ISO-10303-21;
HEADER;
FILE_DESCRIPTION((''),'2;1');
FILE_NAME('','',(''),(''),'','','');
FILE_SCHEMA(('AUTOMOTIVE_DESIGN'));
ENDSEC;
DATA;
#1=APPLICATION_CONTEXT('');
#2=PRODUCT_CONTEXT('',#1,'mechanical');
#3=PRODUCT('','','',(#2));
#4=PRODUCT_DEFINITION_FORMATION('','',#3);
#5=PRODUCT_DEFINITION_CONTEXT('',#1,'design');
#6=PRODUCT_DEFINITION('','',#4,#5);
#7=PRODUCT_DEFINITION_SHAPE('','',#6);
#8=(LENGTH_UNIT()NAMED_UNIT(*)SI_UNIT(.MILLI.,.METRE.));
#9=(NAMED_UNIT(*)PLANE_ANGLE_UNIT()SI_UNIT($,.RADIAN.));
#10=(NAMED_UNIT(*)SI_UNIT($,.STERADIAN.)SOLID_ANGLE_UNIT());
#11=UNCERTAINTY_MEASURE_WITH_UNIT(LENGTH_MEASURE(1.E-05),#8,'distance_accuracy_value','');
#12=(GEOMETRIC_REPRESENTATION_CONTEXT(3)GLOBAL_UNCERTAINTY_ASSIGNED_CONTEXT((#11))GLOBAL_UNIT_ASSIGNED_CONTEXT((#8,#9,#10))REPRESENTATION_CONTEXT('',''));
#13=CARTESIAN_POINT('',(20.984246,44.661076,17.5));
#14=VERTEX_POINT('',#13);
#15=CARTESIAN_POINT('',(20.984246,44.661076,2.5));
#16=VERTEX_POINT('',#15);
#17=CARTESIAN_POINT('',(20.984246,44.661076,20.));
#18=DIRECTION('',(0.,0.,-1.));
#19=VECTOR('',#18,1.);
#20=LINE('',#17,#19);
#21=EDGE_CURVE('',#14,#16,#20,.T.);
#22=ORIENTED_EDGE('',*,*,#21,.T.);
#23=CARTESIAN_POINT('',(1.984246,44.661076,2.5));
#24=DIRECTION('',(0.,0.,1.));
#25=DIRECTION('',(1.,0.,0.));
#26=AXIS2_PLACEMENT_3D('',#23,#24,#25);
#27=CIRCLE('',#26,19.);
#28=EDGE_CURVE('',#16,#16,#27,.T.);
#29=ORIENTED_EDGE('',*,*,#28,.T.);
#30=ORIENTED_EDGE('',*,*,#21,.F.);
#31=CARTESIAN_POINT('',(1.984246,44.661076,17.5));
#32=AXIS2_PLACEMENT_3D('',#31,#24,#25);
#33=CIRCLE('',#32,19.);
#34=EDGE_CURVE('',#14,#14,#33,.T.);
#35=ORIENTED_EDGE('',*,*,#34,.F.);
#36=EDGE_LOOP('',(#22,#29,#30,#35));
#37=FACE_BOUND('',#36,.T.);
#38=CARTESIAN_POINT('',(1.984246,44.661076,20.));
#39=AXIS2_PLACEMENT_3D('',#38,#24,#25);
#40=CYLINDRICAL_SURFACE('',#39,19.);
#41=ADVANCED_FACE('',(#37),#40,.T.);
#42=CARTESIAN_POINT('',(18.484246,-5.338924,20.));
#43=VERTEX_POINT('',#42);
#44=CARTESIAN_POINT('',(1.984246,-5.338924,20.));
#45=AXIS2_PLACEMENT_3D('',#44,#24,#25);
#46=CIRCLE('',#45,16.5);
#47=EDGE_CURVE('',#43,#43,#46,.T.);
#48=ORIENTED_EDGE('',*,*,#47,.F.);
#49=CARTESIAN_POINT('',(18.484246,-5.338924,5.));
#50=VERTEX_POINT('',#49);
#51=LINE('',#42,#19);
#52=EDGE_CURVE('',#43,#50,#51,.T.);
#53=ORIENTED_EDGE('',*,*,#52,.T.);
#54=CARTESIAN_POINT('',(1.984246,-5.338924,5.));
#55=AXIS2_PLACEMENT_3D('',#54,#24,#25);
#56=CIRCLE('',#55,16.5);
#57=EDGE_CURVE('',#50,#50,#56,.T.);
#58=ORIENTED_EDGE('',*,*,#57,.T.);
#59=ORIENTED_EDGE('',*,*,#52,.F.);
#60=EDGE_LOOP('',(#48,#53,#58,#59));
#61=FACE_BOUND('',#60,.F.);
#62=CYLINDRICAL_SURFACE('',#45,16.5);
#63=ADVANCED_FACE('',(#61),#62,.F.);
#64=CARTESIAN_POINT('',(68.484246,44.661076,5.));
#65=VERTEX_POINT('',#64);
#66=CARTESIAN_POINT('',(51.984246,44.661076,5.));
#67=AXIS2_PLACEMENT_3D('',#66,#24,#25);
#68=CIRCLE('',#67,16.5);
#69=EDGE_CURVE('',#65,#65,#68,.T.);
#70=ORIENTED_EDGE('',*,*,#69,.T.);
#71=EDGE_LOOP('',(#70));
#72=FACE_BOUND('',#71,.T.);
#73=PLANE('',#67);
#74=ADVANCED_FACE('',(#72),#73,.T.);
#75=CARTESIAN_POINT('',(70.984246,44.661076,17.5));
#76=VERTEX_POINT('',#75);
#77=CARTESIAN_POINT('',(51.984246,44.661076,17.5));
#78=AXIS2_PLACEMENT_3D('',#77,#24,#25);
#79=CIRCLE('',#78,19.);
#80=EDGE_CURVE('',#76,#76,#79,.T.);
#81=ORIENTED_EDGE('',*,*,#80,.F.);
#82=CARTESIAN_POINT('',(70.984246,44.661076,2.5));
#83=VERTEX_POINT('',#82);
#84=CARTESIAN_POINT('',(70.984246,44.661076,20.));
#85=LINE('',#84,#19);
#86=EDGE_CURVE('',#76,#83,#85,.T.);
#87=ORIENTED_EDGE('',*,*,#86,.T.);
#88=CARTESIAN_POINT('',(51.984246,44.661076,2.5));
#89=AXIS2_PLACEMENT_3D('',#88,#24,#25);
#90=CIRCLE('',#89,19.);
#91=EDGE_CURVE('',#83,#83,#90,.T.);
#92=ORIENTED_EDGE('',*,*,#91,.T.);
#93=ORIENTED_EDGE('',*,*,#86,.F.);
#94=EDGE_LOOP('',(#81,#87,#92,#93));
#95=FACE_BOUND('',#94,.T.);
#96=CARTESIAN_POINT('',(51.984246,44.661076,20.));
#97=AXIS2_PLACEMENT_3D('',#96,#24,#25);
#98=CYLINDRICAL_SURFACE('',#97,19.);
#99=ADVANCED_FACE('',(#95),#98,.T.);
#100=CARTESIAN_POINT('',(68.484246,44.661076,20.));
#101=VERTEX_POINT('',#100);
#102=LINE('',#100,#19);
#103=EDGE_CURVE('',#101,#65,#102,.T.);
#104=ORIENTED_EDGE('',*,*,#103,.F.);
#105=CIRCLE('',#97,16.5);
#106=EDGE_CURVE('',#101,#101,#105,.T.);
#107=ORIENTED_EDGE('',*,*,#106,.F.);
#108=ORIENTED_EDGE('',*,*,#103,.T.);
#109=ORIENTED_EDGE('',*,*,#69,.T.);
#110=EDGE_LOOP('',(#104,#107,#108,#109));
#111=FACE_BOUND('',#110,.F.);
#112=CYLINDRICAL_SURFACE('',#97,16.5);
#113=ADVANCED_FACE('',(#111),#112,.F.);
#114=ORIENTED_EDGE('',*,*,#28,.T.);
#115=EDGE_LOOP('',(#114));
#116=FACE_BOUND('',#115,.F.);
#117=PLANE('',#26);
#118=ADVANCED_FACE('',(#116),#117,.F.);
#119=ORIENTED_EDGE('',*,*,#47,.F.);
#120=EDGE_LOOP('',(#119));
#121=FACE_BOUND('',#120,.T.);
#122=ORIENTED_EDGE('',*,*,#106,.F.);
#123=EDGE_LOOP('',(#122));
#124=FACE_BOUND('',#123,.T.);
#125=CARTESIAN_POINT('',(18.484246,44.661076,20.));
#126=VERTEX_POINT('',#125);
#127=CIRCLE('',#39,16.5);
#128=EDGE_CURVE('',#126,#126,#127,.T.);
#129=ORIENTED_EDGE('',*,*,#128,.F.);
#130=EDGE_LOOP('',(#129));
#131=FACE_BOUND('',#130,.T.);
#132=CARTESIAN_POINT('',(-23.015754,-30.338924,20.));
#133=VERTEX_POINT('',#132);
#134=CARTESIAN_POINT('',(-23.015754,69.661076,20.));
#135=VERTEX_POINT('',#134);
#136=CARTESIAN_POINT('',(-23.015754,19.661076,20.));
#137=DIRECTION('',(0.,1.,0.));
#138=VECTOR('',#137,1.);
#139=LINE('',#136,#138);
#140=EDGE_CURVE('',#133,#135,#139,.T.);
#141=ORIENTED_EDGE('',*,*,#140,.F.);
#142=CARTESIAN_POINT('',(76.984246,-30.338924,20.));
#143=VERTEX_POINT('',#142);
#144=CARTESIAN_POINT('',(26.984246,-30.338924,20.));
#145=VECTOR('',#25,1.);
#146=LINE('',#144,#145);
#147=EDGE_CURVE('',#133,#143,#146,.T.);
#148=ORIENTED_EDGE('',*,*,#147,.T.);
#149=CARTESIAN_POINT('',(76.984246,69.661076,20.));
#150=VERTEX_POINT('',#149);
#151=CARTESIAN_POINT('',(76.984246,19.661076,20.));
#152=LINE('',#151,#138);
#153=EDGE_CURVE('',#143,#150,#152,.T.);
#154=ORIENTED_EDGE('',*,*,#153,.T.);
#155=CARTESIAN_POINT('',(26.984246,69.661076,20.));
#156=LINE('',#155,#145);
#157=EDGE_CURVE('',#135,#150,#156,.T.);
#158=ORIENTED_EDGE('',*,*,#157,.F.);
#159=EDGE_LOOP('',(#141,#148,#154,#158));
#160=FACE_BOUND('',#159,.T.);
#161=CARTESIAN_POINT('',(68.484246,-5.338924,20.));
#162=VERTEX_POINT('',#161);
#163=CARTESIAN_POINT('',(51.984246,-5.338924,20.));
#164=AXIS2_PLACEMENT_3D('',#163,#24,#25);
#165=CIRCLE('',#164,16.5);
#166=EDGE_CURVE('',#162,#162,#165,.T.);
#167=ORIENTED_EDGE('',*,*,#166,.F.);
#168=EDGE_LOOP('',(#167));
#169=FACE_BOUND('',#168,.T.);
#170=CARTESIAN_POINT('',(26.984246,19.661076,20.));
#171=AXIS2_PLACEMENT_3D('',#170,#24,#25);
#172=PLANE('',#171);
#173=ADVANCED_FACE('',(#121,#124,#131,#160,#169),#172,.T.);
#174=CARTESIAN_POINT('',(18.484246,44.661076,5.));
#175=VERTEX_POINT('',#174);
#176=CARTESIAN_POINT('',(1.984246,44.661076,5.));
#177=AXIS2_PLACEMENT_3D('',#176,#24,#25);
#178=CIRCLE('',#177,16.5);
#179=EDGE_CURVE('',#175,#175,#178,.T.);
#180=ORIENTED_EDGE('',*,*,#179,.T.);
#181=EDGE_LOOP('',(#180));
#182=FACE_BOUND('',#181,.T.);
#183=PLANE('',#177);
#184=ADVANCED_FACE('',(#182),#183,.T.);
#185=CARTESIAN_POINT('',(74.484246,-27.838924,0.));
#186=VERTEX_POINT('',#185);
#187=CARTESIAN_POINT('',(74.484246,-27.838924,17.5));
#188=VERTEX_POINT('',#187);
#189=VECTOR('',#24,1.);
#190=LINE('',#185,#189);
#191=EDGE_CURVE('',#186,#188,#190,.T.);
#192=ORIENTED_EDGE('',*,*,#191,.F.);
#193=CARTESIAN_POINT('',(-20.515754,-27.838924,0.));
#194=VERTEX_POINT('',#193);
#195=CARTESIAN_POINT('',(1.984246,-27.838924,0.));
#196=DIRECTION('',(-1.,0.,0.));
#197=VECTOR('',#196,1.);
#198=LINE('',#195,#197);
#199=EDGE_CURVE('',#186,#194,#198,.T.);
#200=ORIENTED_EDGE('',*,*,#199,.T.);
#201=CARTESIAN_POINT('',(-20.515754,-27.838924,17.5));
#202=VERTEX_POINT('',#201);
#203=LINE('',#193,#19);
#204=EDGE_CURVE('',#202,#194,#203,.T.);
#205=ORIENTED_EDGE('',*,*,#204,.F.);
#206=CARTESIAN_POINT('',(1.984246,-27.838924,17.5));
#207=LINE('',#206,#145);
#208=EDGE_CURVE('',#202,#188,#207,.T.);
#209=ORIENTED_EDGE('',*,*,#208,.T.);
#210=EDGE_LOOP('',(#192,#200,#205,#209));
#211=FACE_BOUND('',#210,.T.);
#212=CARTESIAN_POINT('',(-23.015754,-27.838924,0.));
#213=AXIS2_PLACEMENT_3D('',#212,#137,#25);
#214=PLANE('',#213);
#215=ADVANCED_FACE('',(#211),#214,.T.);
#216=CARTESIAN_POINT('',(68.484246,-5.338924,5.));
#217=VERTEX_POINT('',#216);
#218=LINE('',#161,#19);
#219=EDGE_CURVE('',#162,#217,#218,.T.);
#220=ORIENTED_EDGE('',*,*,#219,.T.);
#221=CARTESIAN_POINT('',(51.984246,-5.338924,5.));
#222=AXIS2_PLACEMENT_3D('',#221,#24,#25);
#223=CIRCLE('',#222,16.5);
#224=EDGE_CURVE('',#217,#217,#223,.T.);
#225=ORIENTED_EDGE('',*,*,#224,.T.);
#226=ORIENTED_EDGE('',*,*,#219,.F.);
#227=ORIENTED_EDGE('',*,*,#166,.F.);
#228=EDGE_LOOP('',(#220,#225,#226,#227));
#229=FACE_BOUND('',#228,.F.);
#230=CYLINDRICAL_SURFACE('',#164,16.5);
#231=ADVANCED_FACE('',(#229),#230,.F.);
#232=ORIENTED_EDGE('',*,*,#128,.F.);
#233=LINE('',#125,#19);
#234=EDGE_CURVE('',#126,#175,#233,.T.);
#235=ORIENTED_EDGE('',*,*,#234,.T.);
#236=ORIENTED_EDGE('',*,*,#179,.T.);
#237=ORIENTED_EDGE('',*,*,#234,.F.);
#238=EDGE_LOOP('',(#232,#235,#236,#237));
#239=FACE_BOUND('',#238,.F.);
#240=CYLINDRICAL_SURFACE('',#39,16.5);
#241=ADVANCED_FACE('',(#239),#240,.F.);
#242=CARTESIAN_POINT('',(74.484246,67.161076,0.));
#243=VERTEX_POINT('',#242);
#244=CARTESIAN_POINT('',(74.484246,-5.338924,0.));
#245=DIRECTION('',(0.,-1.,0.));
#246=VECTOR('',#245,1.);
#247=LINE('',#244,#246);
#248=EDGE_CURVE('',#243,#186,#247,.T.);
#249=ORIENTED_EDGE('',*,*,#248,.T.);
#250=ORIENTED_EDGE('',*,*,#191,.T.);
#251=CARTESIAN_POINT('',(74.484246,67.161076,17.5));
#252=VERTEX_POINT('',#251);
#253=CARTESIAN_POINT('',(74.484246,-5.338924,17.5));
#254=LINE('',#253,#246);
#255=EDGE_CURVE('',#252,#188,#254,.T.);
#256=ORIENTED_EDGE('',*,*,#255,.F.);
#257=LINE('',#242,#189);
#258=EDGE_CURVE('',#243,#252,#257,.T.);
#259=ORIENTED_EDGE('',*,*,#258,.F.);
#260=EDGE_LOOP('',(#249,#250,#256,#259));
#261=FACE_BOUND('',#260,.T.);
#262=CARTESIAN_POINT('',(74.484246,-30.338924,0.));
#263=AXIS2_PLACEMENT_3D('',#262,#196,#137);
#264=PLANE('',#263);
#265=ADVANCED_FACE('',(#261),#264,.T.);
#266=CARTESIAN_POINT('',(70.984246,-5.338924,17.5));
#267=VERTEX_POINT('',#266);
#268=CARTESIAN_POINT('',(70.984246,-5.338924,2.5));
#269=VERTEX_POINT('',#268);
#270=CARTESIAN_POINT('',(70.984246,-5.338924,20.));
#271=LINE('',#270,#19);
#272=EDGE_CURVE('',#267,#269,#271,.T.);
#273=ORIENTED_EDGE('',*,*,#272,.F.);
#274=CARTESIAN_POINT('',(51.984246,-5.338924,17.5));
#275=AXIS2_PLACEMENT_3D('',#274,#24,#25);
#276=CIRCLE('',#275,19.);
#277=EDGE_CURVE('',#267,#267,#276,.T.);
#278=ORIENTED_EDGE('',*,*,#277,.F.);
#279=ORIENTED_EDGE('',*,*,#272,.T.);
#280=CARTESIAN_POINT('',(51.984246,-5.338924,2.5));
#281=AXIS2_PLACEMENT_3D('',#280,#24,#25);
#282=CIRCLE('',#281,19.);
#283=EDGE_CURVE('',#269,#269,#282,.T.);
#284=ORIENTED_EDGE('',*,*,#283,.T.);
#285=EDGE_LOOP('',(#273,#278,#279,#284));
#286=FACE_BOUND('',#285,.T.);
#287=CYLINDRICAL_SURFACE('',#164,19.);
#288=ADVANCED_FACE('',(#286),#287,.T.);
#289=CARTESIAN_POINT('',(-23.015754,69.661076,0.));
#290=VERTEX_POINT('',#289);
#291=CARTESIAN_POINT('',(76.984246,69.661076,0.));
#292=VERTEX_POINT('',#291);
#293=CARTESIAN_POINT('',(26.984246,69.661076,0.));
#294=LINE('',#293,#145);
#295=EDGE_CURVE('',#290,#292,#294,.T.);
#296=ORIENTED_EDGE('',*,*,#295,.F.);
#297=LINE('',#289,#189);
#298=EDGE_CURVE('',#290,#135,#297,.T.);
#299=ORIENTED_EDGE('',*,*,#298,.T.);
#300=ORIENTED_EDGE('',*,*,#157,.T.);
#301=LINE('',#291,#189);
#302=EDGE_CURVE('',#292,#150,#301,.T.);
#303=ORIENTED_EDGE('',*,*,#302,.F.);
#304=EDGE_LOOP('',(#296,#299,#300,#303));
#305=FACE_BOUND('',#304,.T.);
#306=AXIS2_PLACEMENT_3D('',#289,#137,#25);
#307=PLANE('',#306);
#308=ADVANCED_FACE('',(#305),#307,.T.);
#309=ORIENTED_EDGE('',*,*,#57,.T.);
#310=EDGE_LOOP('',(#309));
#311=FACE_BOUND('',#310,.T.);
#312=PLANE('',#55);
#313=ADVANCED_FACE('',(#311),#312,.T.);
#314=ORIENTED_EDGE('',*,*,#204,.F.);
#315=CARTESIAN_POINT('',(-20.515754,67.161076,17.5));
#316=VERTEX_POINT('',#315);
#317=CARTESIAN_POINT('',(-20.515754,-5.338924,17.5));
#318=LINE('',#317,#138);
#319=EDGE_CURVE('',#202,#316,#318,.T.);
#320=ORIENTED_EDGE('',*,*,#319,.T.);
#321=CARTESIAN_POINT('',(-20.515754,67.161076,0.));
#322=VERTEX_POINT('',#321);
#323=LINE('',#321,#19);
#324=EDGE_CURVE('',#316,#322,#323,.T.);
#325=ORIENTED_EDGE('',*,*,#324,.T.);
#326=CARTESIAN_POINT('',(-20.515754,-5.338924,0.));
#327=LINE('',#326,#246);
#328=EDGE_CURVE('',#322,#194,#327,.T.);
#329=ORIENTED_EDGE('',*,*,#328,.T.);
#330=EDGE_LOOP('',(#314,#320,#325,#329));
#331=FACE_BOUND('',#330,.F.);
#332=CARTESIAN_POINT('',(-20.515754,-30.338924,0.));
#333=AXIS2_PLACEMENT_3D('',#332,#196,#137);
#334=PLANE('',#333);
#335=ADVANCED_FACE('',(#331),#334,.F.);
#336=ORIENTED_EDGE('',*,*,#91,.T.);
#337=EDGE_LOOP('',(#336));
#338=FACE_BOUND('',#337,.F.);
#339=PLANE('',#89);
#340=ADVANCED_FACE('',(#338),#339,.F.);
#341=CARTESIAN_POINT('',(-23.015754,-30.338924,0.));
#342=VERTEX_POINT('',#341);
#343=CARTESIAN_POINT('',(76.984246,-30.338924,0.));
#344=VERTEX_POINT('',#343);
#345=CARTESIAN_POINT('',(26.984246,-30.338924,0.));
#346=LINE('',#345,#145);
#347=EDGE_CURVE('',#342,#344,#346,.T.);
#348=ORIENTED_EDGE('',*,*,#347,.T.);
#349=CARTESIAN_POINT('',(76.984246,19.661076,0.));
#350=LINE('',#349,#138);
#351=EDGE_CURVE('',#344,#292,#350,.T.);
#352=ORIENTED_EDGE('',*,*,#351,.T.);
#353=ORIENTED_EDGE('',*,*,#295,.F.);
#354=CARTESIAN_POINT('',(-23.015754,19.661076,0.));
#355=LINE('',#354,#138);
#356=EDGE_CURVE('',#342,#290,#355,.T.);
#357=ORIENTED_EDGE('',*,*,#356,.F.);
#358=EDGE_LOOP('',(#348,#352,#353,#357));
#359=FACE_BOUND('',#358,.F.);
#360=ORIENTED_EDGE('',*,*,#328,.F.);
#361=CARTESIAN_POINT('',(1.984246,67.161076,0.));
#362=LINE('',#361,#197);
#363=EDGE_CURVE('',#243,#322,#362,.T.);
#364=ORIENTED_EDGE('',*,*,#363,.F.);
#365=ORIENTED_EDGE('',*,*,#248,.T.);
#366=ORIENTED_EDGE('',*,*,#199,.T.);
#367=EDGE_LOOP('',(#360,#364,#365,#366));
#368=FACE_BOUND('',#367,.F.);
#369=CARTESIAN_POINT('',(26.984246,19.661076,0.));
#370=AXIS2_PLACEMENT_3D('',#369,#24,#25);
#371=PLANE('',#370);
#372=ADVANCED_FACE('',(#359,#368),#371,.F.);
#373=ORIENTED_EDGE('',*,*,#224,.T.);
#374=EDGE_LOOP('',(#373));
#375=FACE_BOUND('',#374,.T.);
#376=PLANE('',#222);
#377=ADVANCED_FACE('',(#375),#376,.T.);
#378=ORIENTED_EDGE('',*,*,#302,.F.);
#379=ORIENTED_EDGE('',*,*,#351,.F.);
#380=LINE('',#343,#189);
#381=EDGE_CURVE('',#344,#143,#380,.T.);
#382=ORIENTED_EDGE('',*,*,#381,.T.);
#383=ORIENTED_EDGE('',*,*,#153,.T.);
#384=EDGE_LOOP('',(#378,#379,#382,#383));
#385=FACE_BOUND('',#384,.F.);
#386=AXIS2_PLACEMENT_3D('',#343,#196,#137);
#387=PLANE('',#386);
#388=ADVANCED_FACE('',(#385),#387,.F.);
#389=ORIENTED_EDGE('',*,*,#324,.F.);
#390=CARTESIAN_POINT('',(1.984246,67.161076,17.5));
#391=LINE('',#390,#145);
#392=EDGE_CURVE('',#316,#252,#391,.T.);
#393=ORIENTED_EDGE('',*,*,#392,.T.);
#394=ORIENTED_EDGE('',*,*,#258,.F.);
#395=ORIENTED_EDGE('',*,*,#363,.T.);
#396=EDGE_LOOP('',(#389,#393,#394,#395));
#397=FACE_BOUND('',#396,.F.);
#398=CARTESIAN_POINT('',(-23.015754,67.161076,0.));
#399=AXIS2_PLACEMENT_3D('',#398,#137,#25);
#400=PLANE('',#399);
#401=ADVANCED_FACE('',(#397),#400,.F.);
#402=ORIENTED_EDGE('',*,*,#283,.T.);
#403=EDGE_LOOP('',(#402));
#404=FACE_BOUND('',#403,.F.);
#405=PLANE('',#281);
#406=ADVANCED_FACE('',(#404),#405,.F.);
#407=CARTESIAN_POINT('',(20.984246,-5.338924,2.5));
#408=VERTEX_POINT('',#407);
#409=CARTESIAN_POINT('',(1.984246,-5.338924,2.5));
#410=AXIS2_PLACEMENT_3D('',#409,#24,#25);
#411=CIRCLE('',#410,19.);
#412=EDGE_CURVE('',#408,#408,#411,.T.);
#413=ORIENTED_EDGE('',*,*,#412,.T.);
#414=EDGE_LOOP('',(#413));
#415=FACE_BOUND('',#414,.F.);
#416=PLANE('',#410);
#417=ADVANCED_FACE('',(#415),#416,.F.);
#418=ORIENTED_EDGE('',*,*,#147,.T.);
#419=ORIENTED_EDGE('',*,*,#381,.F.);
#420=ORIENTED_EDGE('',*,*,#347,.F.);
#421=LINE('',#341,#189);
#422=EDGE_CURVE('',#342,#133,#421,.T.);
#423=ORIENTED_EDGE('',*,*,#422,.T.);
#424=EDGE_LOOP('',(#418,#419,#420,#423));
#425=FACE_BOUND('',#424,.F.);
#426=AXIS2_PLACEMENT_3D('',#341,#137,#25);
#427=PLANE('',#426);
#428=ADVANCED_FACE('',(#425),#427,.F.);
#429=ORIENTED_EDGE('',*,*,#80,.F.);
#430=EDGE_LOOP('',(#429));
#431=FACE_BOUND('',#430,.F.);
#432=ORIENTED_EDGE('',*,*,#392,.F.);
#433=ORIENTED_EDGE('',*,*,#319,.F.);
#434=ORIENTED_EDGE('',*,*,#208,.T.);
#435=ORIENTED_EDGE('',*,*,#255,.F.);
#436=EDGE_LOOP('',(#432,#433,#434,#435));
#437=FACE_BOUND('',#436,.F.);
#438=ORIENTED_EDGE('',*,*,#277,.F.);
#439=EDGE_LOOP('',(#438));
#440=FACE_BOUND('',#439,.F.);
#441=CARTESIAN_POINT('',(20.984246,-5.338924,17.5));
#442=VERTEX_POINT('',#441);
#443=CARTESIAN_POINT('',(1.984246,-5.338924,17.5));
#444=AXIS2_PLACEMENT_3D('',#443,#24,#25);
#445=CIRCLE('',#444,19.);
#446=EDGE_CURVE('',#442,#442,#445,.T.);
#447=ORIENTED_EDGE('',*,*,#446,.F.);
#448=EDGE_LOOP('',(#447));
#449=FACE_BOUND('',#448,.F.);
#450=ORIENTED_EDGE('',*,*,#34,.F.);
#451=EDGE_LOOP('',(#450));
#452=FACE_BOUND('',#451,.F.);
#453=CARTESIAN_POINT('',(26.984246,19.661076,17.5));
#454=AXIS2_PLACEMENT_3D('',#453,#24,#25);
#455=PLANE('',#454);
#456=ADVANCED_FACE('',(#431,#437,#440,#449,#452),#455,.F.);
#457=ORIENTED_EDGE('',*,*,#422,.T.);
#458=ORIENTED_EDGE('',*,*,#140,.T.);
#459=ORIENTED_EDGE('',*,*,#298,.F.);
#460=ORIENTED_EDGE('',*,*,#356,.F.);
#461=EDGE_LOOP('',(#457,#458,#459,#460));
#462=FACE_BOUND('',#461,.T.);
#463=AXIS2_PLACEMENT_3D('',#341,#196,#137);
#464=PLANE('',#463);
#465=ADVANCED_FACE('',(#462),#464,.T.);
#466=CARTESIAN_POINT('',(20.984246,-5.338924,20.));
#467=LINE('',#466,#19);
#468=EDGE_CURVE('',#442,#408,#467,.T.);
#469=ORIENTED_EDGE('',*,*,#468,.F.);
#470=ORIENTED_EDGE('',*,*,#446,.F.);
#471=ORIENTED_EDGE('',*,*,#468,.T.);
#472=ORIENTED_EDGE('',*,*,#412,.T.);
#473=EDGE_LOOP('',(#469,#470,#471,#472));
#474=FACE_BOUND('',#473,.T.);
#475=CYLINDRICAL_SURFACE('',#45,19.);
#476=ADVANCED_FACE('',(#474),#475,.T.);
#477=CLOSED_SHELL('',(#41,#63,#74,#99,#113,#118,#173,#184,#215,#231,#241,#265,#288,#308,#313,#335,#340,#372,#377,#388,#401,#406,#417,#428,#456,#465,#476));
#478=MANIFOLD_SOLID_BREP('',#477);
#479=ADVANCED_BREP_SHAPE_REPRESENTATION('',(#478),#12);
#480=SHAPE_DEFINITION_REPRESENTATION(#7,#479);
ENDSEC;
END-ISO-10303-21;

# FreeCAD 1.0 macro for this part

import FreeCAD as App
import Part
import Sketcher


def faces_at(feature, points):
    """Names of the faces that lie closest to the given points."""
    faces = feature.Shape.Faces
    near = lambda p: min(range(len(faces)), key=lambda i: faces[i].distToShape(Part.Vertex(*p))[0])
    return sorted({f"Face{near(p) + 1}" for p in points})

doc = App.newDocument("Part")
params = doc.addObject("Spreadsheet::Sheet", "Params")
for row, (alias, value) in enumerate([
    ("sketch1_width", "100 mm"),
    ("pad1_length", "20 mm"),
    ("sketch2_diameter", "33 mm"),
    ("pocket1_length", "15 mm"),
    ("thickness_wall", "2.5 mm"),
], start=1):
    params.set(f"A{row}", alias)
    params.set(f"B{row}", "=" + value)
    params.setAlias(f"B{row}", alias)

body = doc.addObject("PartDesign::Body", "Body")

# Sketch on XY plane
sketch1 = doc.addObject("Sketcher::SketchObject", "Sketch")
body.addObject(sketch1)
sketch1.AttachmentSupport = (doc.XY_Plane, [""])
sketch1.MapMode = "FlatFace"
sketch1.addGeometry([
    Part.LineSegment(App.Vector(-23, 70, 0), App.Vector(-23, -30, 0)),
    Part.LineSegment(App.Vector(-23, -30, 0), App.Vector(77, -30, 0)),
    Part.LineSegment(App.Vector(77, -30, 0), App.Vector(77, 70, 0)),
    Part.LineSegment(App.Vector(77, 70, 0), App.Vector(-23, 70, 0)),
], False)
sketch1.addConstraint([
    Sketcher.Constraint("Coincident", 0, 2, 1, 1),
    Sketcher.Constraint("Coincident", 1, 2, 2, 1),
    Sketcher.Constraint("Coincident", 2, 2, 3, 1),
    Sketcher.Constraint("Coincident", 3, 2, 0, 1),
    Sketcher.Constraint("Vertical", 0),
    Sketcher.Constraint("Horizontal", 1),
    Sketcher.Constraint("Vertical", 2),
    Sketcher.Constraint("Horizontal", 3),
    Sketcher.Constraint("Equal", 3, 0),
    Sketcher.Constraint("DistanceX", 1, 1, 1, 2, 100.0),
    Sketcher.Constraint("DistanceX", 0, 2, -1, 1, 23.015754),
    Sketcher.Constraint("DistanceY", 0, 2, -1, 1, 30.338924),
])
sketch1.setExpression("Constraints[9]", "Params.sketch1_width")
pad1 = doc.addObject("PartDesign::Pad", "Pad")
body.addObject(pad1)
pad1.Profile = sketch1
pad1.setExpression("Length", "Params.pad1_length")

# Sketch on XY plane
sketch2 = doc.addObject("Sketcher::SketchObject", "Sketch001")
body.addObject(sketch2)
sketch2.AttachmentSupport = (doc.XY_Plane, [""])
sketch2.MapMode = "FlatFace"
sketch2.AttachmentOffset = App.Placement(App.Vector(0, 0, 20), App.Rotation())
sketch2.addGeometry([
    Part.Circle(App.Vector(2, 45, 0), App.Vector(0, 0, 1), 16),
    Part.Circle(App.Vector(52, 45, 0), App.Vector(0, 0, 1), 16),
    Part.Circle(App.Vector(52, -5, 0), App.Vector(0, 0, 1), 16),
    Part.Circle(App.Vector(2, -5, 0), App.Vector(0, 0, 1), 16),
], False)
sketch2.addConstraint([
    Sketcher.Constraint("Equal", 0, 1),
    Sketcher.Constraint("Equal", 1, 2),
    Sketcher.Constraint("Equal", 2, 3),
    Sketcher.Constraint("Horizontal", 0, 3, 1, 3),
    Sketcher.Constraint("Horizontal", 2, 3, 3, 3),
    Sketcher.Constraint("Vertical", 1, 3, 2, 3),
    Sketcher.Constraint("Vertical", 0, 3, 3, 3),
    Sketcher.Constraint("Diameter", 0, 33.0),
    Sketcher.Constraint("DistanceX", 0, 3, 1, 3, 50.0),
    Sketcher.Constraint("DistanceY", 2, 3, 1, 3, 50.0),
    Sketcher.Constraint("DistanceX", -1, 1, 0, 3, 1.984246),
    Sketcher.Constraint("DistanceY", -1, 1, 0, 3, 44.661076),
])
sketch2.setExpression("Constraints[7]", "Params.sketch2_diameter")
pocket1 = doc.addObject("PartDesign::Pocket", "Pocket")
body.addObject(pocket1)
pocket1.Profile = sketch2
pocket1.setExpression("Length", "Params.pocket1_length")
doc.recompute()

thickness = doc.addObject("PartDesign::Thickness", "Thickness")
body.addObject(thickness)
thickness.Base = (pocket1, faces_at(pocket1, [(26.984, 19.661, 0)]))
thickness.setExpression("Value", "Params.thickness_wall")
thickness.Reversed = True
thickness.Join = "Intersection"

doc.recompute()
